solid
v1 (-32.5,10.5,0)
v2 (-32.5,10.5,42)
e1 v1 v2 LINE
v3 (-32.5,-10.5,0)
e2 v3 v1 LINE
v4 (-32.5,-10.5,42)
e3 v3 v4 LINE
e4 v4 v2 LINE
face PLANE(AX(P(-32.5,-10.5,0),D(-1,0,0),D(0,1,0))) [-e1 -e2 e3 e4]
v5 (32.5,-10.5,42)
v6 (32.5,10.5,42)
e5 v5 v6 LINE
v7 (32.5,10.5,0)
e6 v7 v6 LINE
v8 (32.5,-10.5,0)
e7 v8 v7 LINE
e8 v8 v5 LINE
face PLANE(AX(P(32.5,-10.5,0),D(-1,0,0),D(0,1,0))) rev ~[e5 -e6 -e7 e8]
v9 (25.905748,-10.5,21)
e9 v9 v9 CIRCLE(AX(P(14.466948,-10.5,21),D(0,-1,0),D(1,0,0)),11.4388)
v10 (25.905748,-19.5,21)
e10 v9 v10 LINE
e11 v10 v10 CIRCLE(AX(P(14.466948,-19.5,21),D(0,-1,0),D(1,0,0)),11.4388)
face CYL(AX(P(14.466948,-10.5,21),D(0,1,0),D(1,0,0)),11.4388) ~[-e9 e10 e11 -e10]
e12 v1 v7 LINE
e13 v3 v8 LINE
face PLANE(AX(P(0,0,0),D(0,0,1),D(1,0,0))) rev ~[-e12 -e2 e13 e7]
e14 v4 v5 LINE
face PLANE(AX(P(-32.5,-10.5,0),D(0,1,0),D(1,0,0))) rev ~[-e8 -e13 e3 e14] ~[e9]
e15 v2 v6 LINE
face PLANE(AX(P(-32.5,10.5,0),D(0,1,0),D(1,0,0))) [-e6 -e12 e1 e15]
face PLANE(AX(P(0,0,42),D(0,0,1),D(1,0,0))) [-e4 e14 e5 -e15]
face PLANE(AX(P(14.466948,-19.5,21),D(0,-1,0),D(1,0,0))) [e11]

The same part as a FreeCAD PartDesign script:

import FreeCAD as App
import Part
import Sketcher

V = App.Vector
Q = App.Units.Quantity


def add_polygon(sketch, points):
    """Adds a closed chain of lines whose ends are joined by coincident constraints."""
    first, n = sketch.GeometryCount, len(points)
    for a, b in zip(points, points[1:] + points[:1]):
        sketch.addGeometry(Part.LineSegment(App.Vector(*a, 0), App.Vector(*b, 0)), False)
    for i in range(n):
        sketch.addConstraint(Sketcher.Constraint("Coincident", first + i, 2, first + (i + 1) % n, 1))

doc = App.newDocument("Part")
params = doc.addObject("Spreadsheet::Sheet", "Params")
for row, (alias, value) in enumerate([
    ("sketch1_width", "65 mm"),
    ("sketch1_height", "21 mm"),
    ("pad1_length", "42 mm"),
    ("pad2_length", "9 mm"),
], start=1):
    params.set(f"A{row}", alias)
    params.set(f"B{row}", "=" + value)
    params.setAlias(f"B{row}", alias)

body = doc.addObject("PartDesign::Body", "Body")

sketch1 = body.newObject("Sketcher::SketchObject", "Sketch")
sketch1.AttachmentSupport = (doc.getObject("XY_Plane"), [""])
sketch1.MapMode = "FlatFace"
add_polygon(sketch1, [(-32.5, 10.5), (-32.5, -10.5), (32.5, -10.5), (32.5, 10.5)])
sketch1.addConstraint([
    Sketcher.Constraint("Vertical", 0),
    Sketcher.Constraint("Horizontal", 1),
    Sketcher.Constraint("Vertical", 2),
    Sketcher.Constraint("Horizontal", 3),
    Sketcher.Constraint("Symmetric", 0, 2, 2, 2, -1, 1),
    Sketcher.Constraint("DistanceX", 1, 1, 1, 2, Q("65 mm")),
    Sketcher.Constraint("DistanceY", 0, 2, 0, 1, Q("21 mm")),
])
sketch1.setExpression("Constraints[9]", "Params.sketch1_width")
sketch1.setExpression("Constraints[10]", "Params.sketch1_height")
pad1 = body.newObject("PartDesign::Pad", "Pad")
pad1.Profile = sketch1
pad1.setExpression("Length", "Params.pad1_length")

sketch2 = body.newObject("Sketcher::SketchObject", "Sketch001")
sketch2.AttachmentSupport = (doc.getObject("XZ_Plane"), [""])
sketch2.MapMode = "FlatFace"
sketch2.AttachmentOffset = App.Placement(V(0, 0, 10.5), App.Rotation())
sketch2.addGeometry(Part.Circle(V(14.466948, 21, 0), V(0, 0, 1), 11.4388), False)
sketch2.addConstraint([
    Sketcher.Constraint("DistanceY", -1, 1, 0, 3, Q("21 mm")),
    Sketcher.Constraint("Diameter", 0, Q("22.8776 mm")),
    Sketcher.Constraint("DistanceX", -1, 1, 0, 3, Q("14.466948 mm")),
])
pad2 = body.newObject("PartDesign::Pad", "Pad001")
pad2.Profile = sketch2
pad2.setExpression("Length", "Params.pad2_length")

doc.recompute()
